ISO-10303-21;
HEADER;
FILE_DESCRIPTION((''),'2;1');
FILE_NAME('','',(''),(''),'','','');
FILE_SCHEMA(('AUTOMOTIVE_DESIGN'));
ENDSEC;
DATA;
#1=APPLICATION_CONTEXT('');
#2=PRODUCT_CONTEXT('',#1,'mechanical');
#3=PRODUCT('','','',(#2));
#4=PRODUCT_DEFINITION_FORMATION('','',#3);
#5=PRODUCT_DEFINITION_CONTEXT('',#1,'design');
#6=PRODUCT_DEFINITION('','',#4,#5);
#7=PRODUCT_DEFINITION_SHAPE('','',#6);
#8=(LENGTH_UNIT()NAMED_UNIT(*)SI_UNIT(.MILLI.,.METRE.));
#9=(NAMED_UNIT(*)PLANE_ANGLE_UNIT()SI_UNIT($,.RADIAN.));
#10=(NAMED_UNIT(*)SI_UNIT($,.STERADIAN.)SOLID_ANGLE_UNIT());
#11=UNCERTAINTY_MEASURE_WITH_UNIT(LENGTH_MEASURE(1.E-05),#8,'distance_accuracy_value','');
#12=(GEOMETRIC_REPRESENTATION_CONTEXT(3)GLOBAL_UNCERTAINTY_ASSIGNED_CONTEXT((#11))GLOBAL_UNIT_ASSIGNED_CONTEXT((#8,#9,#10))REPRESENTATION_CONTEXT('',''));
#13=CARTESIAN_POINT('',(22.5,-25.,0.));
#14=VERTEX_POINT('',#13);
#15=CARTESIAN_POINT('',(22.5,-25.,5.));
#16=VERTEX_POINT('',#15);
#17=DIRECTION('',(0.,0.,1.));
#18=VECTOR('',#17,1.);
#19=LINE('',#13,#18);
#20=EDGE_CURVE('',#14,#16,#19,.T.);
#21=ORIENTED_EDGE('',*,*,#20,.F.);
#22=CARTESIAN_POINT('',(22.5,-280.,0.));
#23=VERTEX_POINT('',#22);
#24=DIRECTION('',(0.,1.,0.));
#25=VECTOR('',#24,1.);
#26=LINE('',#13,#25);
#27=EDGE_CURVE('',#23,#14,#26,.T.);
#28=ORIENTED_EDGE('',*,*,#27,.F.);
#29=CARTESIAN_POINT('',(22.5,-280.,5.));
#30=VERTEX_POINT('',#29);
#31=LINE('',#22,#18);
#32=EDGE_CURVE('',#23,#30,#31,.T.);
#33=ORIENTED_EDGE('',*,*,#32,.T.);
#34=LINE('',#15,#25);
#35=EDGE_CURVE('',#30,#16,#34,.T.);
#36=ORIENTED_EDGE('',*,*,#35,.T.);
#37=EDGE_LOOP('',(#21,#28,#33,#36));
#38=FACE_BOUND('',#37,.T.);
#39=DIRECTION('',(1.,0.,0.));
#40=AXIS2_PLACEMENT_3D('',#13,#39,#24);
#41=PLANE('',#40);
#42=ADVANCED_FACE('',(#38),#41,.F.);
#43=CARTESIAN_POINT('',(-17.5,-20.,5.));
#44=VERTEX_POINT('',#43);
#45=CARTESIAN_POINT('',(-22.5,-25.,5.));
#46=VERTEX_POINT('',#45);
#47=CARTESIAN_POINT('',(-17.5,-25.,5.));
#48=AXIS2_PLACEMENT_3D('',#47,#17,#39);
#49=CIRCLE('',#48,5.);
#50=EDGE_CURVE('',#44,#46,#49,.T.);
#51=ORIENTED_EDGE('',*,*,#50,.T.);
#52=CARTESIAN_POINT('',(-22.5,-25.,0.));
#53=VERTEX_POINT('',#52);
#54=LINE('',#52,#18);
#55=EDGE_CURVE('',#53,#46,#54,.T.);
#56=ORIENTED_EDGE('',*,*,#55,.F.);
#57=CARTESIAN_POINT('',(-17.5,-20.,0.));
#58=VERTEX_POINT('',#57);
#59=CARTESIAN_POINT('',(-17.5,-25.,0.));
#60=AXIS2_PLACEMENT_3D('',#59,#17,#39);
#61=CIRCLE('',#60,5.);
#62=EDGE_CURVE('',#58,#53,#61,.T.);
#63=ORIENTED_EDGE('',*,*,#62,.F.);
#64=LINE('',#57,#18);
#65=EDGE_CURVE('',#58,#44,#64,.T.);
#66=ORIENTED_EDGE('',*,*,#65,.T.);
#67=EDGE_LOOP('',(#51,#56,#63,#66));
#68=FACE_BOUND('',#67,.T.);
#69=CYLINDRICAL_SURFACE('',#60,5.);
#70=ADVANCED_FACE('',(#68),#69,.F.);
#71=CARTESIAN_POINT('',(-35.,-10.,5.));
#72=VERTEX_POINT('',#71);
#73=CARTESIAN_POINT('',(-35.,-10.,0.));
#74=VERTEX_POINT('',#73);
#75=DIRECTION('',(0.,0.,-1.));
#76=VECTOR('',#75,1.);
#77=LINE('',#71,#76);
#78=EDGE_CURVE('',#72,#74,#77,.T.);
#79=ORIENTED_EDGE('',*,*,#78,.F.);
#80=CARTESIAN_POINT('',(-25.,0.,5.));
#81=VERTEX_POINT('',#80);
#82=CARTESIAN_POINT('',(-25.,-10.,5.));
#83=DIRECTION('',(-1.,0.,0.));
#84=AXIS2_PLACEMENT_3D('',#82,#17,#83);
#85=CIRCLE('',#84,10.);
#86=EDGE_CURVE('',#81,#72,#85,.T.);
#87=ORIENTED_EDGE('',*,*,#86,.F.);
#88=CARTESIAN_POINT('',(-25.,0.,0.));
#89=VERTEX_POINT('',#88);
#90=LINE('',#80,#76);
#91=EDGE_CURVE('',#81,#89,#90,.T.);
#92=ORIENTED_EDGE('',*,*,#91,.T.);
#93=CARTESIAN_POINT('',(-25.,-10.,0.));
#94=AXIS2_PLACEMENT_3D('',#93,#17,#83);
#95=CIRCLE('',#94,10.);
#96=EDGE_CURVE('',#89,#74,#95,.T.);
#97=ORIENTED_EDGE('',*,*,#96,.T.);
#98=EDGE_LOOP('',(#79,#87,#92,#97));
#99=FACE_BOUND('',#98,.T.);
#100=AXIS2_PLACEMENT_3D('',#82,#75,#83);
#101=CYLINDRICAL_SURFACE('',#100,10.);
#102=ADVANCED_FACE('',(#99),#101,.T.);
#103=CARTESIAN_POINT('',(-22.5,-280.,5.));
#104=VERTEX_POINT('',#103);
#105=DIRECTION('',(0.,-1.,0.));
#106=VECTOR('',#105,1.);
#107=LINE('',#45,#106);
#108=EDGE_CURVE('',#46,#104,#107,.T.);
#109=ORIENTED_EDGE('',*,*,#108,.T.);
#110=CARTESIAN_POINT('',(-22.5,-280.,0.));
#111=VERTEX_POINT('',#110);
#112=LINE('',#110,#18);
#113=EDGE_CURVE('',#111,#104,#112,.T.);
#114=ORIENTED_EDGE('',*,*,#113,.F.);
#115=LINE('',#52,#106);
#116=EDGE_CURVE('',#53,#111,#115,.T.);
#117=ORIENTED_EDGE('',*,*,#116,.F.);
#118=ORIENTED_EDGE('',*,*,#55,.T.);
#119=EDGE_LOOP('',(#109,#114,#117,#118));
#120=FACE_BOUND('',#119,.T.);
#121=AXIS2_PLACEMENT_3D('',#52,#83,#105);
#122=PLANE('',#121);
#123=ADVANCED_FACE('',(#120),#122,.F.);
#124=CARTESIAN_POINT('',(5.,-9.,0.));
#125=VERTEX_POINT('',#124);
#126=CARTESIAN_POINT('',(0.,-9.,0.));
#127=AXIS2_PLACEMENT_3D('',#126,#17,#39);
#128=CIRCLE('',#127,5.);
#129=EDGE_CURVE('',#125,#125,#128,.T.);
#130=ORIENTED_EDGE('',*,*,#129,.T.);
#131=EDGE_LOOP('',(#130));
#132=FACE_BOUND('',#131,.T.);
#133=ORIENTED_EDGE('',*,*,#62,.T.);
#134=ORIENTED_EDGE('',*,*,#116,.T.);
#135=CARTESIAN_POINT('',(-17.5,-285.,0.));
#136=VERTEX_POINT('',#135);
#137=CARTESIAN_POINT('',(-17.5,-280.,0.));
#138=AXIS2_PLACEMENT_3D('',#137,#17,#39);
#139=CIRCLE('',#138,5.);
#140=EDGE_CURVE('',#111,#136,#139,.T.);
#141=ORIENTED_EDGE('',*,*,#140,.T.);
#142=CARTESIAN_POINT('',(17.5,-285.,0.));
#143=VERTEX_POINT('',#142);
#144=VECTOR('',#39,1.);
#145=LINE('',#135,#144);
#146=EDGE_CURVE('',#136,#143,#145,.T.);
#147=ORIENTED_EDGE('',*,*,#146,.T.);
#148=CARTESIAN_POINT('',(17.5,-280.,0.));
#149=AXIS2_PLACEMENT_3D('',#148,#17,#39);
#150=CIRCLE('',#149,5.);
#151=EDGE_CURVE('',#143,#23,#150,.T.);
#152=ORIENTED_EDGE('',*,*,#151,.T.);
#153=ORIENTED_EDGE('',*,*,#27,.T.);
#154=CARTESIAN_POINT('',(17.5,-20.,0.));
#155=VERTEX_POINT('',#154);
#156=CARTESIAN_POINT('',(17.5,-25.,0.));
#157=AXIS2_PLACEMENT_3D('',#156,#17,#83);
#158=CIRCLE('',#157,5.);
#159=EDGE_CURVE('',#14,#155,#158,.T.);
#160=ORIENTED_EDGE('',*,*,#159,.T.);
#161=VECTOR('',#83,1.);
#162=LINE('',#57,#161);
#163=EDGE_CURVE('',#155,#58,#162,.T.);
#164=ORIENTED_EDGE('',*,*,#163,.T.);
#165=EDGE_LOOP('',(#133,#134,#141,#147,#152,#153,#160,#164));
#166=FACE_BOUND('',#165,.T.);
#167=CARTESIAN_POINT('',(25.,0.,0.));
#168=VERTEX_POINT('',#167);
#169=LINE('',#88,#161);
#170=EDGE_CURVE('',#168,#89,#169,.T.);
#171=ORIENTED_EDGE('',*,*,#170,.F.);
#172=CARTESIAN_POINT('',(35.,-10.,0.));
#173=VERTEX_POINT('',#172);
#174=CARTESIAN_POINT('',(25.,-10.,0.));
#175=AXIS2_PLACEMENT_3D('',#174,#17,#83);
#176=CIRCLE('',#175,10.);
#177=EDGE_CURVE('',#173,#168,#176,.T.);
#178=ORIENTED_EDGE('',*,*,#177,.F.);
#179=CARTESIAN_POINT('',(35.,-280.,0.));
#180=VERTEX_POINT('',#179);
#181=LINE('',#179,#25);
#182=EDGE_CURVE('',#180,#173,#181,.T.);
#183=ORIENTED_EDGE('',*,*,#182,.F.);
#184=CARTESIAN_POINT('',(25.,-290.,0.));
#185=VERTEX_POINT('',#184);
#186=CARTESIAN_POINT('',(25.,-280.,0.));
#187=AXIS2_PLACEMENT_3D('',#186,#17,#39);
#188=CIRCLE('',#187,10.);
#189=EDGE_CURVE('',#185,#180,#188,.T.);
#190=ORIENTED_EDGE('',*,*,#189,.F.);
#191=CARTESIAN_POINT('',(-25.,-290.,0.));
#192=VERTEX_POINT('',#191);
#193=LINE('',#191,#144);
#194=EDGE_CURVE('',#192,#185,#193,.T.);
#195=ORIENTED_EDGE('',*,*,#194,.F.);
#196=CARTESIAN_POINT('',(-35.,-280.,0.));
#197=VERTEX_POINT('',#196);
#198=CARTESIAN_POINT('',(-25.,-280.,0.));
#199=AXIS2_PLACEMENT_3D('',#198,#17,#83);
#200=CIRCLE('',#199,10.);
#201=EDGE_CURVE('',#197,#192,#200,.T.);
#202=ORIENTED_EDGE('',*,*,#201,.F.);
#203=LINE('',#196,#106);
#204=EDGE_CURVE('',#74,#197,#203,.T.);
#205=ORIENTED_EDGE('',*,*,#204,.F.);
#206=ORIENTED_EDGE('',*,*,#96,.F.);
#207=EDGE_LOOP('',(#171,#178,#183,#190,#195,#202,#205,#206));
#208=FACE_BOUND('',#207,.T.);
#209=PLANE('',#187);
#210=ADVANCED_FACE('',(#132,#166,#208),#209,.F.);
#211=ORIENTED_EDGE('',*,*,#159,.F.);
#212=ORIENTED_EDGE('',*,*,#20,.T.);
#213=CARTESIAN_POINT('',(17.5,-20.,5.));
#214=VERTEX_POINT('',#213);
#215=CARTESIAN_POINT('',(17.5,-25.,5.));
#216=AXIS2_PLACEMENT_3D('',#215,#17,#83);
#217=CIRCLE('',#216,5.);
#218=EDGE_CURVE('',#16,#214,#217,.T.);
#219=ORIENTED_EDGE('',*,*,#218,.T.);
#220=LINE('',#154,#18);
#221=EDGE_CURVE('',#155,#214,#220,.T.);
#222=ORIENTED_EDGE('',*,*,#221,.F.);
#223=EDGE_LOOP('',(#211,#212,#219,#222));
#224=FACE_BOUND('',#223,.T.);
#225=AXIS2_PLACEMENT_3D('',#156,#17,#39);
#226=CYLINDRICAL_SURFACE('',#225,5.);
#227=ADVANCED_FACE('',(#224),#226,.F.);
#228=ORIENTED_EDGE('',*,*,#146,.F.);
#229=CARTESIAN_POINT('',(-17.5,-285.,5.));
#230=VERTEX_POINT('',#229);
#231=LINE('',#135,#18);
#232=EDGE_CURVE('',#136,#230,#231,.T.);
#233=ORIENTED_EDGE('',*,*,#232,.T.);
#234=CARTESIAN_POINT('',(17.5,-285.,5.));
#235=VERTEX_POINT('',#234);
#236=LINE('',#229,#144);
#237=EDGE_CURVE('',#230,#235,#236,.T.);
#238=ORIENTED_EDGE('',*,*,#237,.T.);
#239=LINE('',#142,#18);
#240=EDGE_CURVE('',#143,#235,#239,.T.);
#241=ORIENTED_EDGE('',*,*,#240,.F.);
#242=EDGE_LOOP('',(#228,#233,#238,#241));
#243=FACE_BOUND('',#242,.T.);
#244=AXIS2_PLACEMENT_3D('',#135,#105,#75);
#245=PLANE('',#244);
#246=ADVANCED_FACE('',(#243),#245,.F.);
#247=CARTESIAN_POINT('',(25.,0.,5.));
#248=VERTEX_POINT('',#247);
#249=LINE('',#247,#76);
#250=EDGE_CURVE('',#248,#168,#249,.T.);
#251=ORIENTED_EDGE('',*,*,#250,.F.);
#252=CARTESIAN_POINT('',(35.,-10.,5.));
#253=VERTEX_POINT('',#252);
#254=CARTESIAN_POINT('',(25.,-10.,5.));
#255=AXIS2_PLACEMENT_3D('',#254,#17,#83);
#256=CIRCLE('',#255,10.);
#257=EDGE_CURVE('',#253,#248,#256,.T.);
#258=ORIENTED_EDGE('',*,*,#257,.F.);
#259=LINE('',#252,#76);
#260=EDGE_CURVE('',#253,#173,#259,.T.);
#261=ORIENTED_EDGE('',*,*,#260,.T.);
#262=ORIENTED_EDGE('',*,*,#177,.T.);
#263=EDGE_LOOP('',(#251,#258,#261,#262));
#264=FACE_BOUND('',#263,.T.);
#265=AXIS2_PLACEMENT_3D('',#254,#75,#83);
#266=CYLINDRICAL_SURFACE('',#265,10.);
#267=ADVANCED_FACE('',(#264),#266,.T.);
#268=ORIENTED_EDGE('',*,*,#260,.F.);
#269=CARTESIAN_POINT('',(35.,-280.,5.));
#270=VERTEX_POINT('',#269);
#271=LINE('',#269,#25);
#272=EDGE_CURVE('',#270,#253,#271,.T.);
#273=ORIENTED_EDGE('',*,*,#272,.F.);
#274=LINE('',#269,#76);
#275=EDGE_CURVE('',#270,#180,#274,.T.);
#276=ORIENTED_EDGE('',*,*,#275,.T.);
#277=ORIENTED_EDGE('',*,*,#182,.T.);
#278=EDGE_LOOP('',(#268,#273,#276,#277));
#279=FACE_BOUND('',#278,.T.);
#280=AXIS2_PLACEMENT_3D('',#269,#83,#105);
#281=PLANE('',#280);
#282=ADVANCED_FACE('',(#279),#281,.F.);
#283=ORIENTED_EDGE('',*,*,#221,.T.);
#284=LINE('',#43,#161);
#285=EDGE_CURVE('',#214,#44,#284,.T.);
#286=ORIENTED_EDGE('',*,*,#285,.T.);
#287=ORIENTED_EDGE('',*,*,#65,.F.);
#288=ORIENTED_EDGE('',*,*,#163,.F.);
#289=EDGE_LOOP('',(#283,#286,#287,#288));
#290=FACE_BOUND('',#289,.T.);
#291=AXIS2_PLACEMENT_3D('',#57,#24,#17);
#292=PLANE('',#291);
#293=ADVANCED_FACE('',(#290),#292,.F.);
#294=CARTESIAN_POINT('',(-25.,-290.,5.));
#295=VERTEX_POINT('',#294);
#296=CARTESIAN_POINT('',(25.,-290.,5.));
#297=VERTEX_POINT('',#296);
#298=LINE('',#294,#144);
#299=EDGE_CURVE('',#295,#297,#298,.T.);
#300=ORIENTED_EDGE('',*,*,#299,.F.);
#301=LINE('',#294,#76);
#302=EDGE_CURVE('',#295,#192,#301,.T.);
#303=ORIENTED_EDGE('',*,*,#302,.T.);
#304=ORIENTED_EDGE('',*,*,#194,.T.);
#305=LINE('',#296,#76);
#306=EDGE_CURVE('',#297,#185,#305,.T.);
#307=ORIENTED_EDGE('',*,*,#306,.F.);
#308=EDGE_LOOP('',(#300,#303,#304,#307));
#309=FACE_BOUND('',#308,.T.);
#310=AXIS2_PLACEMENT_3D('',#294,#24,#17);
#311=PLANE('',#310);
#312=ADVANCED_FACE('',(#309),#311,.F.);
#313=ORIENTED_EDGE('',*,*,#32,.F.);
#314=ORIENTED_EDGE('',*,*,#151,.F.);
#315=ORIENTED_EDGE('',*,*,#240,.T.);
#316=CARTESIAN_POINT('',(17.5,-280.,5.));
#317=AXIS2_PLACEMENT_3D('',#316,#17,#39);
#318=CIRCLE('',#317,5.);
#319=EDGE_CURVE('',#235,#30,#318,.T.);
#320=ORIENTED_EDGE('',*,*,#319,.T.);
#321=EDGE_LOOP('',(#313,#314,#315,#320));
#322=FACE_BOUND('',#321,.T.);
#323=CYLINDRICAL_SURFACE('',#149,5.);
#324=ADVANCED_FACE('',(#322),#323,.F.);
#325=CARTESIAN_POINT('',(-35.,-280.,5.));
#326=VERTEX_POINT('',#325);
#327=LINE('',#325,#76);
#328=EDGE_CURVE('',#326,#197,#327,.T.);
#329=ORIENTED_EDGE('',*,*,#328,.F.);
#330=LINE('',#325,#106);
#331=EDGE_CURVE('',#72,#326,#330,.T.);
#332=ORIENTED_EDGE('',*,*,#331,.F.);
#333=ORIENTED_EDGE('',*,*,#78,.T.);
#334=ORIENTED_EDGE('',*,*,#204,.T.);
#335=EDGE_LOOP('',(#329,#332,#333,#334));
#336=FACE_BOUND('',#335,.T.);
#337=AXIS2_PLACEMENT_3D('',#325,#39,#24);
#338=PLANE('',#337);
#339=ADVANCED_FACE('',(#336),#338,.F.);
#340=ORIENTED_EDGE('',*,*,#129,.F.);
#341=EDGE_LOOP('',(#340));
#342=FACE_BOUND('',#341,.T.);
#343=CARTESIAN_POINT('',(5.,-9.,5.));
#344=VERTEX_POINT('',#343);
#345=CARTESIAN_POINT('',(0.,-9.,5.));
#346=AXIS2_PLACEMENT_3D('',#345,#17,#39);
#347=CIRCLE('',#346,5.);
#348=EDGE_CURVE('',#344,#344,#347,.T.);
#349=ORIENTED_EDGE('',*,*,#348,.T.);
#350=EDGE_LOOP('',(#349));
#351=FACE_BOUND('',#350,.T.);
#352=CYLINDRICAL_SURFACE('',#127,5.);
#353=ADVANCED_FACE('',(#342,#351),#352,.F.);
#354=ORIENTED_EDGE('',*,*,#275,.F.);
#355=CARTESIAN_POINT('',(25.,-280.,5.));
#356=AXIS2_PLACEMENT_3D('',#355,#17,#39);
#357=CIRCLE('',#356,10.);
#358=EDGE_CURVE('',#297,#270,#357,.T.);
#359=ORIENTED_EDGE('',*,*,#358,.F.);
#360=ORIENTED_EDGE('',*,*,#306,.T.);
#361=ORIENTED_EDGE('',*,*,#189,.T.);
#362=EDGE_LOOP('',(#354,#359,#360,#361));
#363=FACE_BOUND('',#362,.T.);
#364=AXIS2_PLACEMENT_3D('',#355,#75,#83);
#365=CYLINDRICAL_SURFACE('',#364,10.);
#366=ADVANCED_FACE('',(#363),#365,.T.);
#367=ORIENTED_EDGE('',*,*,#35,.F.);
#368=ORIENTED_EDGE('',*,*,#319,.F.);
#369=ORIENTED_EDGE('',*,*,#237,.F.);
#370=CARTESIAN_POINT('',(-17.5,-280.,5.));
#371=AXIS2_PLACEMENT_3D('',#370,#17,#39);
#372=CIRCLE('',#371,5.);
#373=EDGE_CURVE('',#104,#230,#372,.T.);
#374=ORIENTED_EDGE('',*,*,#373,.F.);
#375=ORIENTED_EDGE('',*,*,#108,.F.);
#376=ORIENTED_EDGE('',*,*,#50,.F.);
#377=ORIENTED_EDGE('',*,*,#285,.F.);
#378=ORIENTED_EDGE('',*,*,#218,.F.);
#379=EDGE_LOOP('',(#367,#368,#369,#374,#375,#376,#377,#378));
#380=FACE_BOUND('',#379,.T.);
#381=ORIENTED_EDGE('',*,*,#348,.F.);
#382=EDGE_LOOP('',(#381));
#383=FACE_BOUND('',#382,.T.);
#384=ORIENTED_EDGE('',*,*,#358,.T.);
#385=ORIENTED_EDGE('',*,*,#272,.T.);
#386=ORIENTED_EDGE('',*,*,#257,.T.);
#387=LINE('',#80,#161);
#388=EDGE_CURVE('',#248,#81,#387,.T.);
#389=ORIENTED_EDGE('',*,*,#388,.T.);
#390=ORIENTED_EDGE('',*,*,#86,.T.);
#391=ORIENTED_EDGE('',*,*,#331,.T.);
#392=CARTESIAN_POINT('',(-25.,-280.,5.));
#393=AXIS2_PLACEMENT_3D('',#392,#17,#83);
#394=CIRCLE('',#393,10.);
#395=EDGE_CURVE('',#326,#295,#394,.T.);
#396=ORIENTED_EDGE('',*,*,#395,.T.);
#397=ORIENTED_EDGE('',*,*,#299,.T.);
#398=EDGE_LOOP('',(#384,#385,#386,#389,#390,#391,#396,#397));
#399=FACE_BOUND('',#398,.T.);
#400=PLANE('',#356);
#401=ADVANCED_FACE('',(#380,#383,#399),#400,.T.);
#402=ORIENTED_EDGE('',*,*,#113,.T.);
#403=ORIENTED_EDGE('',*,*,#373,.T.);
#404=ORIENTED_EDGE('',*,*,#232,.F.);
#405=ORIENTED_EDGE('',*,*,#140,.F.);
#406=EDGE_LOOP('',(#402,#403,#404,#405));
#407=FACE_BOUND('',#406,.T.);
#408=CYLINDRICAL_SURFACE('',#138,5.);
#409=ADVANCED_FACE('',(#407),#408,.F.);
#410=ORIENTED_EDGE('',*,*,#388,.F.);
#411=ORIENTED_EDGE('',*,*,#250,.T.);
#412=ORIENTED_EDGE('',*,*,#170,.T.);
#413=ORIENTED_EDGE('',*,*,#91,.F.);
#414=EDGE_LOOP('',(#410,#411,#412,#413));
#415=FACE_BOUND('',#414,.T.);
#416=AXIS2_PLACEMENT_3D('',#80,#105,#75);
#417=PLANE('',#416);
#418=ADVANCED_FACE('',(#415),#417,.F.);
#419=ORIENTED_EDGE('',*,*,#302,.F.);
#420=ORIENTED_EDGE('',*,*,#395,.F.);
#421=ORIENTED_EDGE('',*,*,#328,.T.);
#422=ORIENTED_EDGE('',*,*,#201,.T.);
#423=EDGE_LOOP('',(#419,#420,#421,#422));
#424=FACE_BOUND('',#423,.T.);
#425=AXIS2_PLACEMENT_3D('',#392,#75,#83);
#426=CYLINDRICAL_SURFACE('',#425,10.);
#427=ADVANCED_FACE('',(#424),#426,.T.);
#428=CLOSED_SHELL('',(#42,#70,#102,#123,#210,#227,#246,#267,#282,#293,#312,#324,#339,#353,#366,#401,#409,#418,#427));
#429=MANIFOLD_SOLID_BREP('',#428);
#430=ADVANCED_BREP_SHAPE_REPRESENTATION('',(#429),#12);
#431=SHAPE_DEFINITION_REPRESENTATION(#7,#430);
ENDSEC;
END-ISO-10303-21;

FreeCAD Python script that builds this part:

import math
import FreeCAD as App
import Part
import Sketcher
from FreeCAD import Vector
Q = App.Units.Quantity

doc = App.newDocument("Part")
body = doc.addObject("PartDesign::Body", "Body")

# Sketch on XY plane
sketch1 = body.newObject("Sketcher::SketchObject", "Sketch")
sketch1.AttachmentSupport = (doc.getObject("XY_Plane"), [""])
sketch1.MapMode = "FlatFace"
sketch1.addGeometry([
    Part.LineSegment(Vector(-25, -290, 0), Vector(25, -290, 0)),  # 0
    Part.ArcOfCircle(Part.Circle(Vector(25, -280, 0), Vector(0, 0, 1), 10), math.radians(-90), math.radians(0)),  # 1
    Part.LineSegment(Vector(35, -280, 0), Vector(35, -10, 0)),  # 2
    Part.ArcOfCircle(Part.Circle(Vector(25, -10, 0), Vector(0, 0, 1), 10), math.radians(0), math.radians(90)),  # 3
    Part.LineSegment(Vector(25, 0, 0), Vector(-25, 0, 0)),  # 4
    Part.ArcOfCircle(Part.Circle(Vector(-25, -10, 0), Vector(0, 0, 1), 10), math.radians(90), math.radians(180)),  # 5
    Part.LineSegment(Vector(-35, -10, 0), Vector(-35, -280, 0)),  # 6
    Part.ArcOfCircle(Part.Circle(Vector(-25, -280, 0), Vector(0, 0, 1), 10), math.radians(180), math.radians(270)),  # 7
], False)
sketch1.addConstraint([
    Sketcher.Constraint("Tangent", 0, 2, 1, 1),
    Sketcher.Constraint("Tangent", 1, 2, 2, 1),
    Sketcher.Constraint("Tangent", 2, 2, 3, 1),
    Sketcher.Constraint("Tangent", 3, 2, 4, 1),
    Sketcher.Constraint("Tangent", 4, 2, 5, 1),
    Sketcher.Constraint("Tangent", 5, 2, 6, 1),
    Sketcher.Constraint("Tangent", 6, 2, 7, 1),
    Sketcher.Constraint("Tangent", 7, 2, 0, 1),
    Sketcher.Constraint("Horizontal", 0),
    Sketcher.Constraint("Vertical", 2),
    Sketcher.Constraint("Horizontal", 4),
    Sketcher.Constraint("Vertical", 6),
    Sketcher.Constraint("Equal", 1, 3),
    Sketcher.Constraint("Equal", 3, 5),
    Sketcher.Constraint("Equal", 5, 7),
    Sketcher.Constraint("Symmetric", 3, 2, 4, 2, -1, 1),
    Sketcher.Constraint("Radius", 1, Q("10 mm")),
    Sketcher.Constraint("DistanceX", 0, 1, 0, 2, Q("50 mm")),
    Sketcher.Constraint("DistanceY", 2, 1, 2, 2, Q("270 mm")),
])
pad1 = body.newObject("PartDesign::Pad", "Pad")
pad1.Profile = sketch1
pad1.Length = 5

# Sketch on XY plane
sketch2 = body.newObject("Sketcher::SketchObject", "Sketch001")
sketch2.AttachmentSupport = (doc.getObject("XY_Plane"), [""])
sketch2.MapMode = "FlatFace"
sketch2.AttachmentOffset = App.Placement(Vector(0, 0, 5), App.Rotation())
sketch2.addGeometry([
    Part.Circle(Vector(0, -9, 0), Vector(0, 0, 1), 5),  # 0
    Part.LineSegment(Vector(18, -20, 0), Vector(-18, -20, 0)),  # 1
    Part.ArcOfCircle(Part.Circle(Vector(-18, -25, 0), Vector(0, 0, 1), 5), math.radians(90), math.radians(180)),  # 2
    Part.LineSegment(Vector(-22, -25, 0), Vector(-22, -280, 0)),  # 3
    Part.ArcOfCircle(Part.Circle(Vector(-18, -280, 0), Vector(0, 0, 1), 5), math.radians(180), math.radians(270)),  # 4
    Part.LineSegment(Vector(-18, -285, 0), Vector(18, -285, 0)),  # 5
    Part.ArcOfCircle(Part.Circle(Vector(18, -280, 0), Vector(0, 0, 1), 5), math.radians(-90), math.radians(0)),  # 6
    Part.LineSegment(Vector(22, -280, 0), Vector(22, -25, 0)),  # 7
    Part.ArcOfCircle(Part.Circle(Vector(18, -25, 0), Vector(0, 0, 1), 5), math.radians(0), math.radians(90)),  # 8
], False)
sketch2.addConstraint([
    Sketcher.Constraint("Tangent", 1, 2, 2, 1),
    Sketcher.Constraint("Tangent", 2, 2, 3, 1),
    Sketcher.Constraint("Tangent", 3, 2, 4, 1),
    Sketcher.Constraint("Tangent", 4, 2, 5, 1),
    Sketcher.Constraint("Tangent", 5, 2, 6, 1),
    Sketcher.Constraint("Tangent", 6, 2, 7, 1),
    Sketcher.Constraint("Tangent", 7, 2, 8, 1),
    Sketcher.Constraint("Tangent", 8, 2, 1, 1),
    Sketcher.Constraint("Horizontal", 1),
    Sketcher.Constraint("Vertical", 3),
    Sketcher.Constraint("Horizontal", 5),
    Sketcher.Constraint("Vertical", 7),
    Sketcher.Constraint("Equal", 0, 2),
    Sketcher.Constraint("Equal", 2, 4),
    Sketcher.Constraint("Equal", 4, 6),
    Sketcher.Constraint("Equal", 6, 8),
    Sketcher.Constraint("PointOnObject", 0, 3, -2),
    Sketcher.Constraint("Diameter", 0, Q("10 mm")),
    Sketcher.Constraint("DistanceX", 1, 2, 1, 1, Q("35 mm")),
    Sketcher.Constraint("DistanceY", 3, 2, 3, 1, Q("255 mm")),
    Sketcher.Constraint("DistanceY", 0, 3, -1, 1, Q("9 mm")),
    Sketcher.Constraint("DistanceY", 2, 3, -1, 1, Q("25 mm")),
    Sketcher.Constraint("DistanceX", 2, 3, -1, 1, Q("17.5 mm")),
])
pocket1 = body.newObject("PartDesign::Pocket", "Pocket")
pocket1.Profile = sketch2
pocket1.Type = "ThroughAll"

doc.recompute()
